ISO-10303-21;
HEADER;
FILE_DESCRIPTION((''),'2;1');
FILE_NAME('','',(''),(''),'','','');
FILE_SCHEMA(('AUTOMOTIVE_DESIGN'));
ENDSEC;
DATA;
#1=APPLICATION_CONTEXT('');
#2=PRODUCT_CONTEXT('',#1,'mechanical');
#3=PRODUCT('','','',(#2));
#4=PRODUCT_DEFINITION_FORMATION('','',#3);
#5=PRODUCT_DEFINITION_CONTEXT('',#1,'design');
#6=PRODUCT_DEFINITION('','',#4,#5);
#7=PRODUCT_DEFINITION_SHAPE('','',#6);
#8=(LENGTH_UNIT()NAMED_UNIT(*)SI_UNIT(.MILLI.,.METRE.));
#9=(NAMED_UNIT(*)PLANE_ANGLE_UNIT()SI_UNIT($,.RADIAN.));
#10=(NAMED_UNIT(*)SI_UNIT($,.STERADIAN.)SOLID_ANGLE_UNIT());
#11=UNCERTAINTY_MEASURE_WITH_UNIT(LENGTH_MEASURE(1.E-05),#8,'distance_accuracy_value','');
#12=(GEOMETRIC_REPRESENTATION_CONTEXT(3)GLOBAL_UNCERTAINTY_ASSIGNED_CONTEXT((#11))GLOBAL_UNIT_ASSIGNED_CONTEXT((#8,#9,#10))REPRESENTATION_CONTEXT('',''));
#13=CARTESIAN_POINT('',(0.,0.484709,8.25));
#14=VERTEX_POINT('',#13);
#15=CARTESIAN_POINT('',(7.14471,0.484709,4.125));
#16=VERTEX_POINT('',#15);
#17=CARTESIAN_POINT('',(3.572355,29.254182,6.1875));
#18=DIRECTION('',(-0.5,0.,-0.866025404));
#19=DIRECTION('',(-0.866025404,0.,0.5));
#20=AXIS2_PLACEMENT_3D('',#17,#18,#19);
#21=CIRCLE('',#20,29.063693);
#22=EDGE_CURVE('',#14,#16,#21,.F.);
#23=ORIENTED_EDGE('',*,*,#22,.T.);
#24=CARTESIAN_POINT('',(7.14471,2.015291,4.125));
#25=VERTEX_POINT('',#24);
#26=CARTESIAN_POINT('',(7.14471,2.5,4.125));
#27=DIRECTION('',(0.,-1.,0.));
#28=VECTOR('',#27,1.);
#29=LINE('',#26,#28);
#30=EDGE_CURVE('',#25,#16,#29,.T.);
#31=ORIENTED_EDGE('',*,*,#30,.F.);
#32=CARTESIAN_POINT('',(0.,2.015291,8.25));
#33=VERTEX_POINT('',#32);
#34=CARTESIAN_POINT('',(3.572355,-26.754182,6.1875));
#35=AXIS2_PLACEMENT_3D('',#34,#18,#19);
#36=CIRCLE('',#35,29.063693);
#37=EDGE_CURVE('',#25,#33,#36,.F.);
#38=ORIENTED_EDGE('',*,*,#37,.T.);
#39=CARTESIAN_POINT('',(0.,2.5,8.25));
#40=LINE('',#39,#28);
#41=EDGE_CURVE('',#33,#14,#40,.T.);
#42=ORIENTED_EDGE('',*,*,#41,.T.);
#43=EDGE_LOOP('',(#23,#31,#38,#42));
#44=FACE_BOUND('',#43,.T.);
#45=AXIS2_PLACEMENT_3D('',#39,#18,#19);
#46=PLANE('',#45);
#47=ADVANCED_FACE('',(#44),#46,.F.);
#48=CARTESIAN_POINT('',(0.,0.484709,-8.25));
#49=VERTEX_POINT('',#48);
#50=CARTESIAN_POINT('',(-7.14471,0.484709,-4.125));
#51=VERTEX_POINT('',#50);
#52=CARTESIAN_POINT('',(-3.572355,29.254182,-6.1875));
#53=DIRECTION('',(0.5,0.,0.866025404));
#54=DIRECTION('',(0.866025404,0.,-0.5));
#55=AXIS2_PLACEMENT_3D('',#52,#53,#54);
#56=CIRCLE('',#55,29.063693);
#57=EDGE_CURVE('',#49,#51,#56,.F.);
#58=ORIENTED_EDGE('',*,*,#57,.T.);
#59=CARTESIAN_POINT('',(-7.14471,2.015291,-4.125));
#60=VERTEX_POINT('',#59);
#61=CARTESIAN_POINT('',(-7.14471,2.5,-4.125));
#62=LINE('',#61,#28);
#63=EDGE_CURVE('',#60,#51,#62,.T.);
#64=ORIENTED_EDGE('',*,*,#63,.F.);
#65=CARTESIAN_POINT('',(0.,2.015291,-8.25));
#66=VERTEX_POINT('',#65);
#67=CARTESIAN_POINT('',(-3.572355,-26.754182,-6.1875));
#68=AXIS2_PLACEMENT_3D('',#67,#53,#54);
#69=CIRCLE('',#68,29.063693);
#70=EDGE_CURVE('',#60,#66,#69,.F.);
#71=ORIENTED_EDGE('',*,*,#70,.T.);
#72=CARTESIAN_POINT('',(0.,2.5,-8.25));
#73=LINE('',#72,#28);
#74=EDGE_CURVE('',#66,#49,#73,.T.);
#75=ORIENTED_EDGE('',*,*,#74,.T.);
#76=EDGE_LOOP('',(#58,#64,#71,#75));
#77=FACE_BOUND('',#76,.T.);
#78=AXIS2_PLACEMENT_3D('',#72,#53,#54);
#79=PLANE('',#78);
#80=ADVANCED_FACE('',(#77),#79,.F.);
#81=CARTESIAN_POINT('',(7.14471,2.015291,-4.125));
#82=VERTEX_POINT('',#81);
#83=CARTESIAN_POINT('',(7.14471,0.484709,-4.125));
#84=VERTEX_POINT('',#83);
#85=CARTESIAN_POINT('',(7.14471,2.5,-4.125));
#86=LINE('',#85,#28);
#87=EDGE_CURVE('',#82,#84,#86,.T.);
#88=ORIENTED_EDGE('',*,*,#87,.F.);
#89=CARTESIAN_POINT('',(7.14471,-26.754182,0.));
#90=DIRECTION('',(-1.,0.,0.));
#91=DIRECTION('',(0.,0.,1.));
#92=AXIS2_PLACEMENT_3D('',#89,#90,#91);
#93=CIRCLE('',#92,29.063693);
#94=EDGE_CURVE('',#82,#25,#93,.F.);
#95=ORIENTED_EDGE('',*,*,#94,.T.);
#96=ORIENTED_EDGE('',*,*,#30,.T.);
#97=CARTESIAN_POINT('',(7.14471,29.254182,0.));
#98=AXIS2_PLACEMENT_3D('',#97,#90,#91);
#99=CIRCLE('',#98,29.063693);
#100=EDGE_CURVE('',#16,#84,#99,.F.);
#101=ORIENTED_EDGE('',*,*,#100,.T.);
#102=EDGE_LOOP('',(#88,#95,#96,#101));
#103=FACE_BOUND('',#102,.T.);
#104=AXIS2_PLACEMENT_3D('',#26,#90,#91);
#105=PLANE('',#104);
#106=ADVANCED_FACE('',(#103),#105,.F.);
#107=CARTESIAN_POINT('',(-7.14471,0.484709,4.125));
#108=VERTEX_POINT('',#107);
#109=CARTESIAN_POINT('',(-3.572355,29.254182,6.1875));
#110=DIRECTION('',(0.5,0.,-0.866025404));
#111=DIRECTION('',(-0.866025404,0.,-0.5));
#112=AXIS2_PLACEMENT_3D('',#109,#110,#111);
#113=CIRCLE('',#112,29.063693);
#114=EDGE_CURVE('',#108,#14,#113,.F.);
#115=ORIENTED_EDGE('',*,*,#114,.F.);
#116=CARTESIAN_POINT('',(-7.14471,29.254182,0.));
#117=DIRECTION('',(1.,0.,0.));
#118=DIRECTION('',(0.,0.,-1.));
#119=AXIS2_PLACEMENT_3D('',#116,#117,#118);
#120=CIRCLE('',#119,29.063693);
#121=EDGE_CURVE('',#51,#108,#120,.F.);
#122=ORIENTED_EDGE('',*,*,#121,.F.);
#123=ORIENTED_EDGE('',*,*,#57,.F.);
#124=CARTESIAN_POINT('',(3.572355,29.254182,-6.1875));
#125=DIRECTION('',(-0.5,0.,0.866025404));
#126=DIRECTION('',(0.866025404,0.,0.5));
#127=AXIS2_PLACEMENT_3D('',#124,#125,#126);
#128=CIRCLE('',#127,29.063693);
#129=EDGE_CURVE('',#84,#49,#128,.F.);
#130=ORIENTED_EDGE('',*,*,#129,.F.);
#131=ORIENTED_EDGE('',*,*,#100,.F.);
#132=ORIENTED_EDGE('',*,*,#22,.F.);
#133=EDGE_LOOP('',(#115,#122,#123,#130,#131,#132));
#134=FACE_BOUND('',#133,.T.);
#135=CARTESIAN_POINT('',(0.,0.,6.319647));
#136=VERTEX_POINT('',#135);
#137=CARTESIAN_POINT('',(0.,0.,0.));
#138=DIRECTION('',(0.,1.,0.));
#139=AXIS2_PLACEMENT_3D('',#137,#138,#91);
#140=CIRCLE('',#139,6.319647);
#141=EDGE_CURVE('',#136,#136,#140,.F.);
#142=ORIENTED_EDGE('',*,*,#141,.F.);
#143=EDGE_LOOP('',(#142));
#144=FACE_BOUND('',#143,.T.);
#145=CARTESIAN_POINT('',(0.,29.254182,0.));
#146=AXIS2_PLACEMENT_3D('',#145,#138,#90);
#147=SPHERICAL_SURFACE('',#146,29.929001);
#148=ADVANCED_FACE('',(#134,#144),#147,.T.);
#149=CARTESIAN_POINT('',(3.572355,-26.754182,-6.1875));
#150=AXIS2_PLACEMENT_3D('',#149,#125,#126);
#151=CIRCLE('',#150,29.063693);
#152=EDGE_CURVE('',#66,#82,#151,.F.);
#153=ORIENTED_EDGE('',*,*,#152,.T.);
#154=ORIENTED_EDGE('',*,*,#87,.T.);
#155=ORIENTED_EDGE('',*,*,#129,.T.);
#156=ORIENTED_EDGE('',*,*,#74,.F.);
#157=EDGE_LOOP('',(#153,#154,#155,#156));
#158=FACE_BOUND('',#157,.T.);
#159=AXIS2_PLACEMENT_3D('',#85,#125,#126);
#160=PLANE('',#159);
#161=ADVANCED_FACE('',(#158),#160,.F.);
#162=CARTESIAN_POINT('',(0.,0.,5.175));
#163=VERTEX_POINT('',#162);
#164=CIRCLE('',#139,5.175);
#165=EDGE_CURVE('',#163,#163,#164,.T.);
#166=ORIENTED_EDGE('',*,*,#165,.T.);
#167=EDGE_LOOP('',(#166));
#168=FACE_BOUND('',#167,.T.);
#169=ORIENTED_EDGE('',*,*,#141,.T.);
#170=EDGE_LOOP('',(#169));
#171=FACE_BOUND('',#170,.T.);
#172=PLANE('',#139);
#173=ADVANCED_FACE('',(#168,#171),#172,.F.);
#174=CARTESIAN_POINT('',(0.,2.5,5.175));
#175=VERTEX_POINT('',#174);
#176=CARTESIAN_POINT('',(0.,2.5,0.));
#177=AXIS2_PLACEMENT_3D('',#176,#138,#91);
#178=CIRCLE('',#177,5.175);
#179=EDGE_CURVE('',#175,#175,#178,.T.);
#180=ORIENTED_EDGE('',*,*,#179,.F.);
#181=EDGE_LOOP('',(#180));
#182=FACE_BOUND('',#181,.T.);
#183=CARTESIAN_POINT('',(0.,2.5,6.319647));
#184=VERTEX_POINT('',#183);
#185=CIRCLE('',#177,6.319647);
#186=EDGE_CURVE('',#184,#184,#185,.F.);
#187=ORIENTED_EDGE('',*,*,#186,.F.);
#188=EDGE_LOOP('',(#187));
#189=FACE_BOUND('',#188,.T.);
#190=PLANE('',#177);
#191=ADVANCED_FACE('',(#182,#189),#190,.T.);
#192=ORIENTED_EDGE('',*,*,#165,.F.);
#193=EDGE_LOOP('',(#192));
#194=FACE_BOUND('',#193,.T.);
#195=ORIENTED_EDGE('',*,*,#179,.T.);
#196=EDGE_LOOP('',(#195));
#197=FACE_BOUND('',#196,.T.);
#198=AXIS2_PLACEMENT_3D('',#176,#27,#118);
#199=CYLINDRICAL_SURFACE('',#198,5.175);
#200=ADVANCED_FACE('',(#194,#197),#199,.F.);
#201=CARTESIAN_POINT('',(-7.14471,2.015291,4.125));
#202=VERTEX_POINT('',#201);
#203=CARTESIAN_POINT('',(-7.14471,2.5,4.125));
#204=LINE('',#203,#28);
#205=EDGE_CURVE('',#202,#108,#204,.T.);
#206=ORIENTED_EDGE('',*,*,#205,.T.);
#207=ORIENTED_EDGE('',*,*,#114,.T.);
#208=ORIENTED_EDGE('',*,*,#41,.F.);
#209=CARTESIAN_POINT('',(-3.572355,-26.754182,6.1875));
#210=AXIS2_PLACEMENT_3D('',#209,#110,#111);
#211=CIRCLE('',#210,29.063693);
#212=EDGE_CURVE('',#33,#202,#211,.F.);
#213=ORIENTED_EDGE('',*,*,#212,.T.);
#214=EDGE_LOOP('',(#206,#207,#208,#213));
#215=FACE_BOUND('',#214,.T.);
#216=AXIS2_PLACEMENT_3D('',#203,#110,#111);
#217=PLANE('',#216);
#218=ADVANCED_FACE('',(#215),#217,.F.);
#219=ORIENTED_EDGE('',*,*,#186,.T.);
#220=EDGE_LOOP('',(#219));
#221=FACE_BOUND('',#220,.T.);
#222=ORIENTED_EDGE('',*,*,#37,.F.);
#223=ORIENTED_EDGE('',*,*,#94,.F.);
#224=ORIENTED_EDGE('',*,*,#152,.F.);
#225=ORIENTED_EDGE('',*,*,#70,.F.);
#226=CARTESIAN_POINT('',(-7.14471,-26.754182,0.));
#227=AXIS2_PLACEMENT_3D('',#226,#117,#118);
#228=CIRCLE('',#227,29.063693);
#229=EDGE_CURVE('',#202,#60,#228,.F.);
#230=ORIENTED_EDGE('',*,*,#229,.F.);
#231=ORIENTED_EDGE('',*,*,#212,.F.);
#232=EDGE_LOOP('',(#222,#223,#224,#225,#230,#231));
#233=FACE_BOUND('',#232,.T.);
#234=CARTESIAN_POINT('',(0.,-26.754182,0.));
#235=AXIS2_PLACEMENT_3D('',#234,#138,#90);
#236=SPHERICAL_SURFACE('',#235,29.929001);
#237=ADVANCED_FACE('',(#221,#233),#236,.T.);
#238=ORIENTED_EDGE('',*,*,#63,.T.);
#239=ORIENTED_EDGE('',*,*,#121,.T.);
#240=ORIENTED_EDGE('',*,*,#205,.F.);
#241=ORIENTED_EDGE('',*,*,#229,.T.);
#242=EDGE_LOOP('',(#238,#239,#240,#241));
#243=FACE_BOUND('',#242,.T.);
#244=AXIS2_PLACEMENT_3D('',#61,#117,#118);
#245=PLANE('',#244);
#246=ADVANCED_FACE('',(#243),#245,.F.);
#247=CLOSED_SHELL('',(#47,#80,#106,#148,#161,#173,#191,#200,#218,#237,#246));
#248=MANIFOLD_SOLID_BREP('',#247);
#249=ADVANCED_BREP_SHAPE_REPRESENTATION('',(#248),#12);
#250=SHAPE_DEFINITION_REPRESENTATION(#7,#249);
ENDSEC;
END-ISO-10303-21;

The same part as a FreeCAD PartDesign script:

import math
import FreeCAD as App
import Part
import Sketcher
Q = App.Units.Quantity


def add_polygon(sketch, points):
    """Adds a closed chain of lines whose ends are joined by coincident constraints."""
    first, n = sketch.GeometryCount, len(points)
    for a, b in zip(points, points[1:] + points[:1]):
        sketch.addGeometry(Part.LineSegment(App.Vector(*a, 0), App.Vector(*b, 0)), False)
    for i in range(n):
        sketch.addConstraint(Sketcher.Constraint("Coincident", first + i, 2, first + (i + 1) % n, 1))

doc = App.newDocument("Part")
body = doc.addObject("PartDesign::Body", "Body")

# Sketch on XZ plane
sketch1 = body.newObject("Sketcher::SketchObject", "Sketch")
sketch1.AttachmentSupport = (doc.getObject("XZ_Plane"), [""])
sketch1.MapMode = "FlatFace"
add_polygon(sketch1, [(0, -8.25), (-7.14471, -4.125), (-7.14471, 4.125), (0, 8.25), (7.14471, 4.125), (7.14471, -4.125)])  # lines 0-5
sketch1.addGeometry(Part.Circle(App.Vector(0, 0, 0), App.Vector(0, 0, 1), 5.175), False)  # 6
sketch1.addConstraint([
    Sketcher.Constraint("Vertical", 1),
    Sketcher.Constraint("Vertical", 4),
    Sketcher.Constraint("Coincident", 6, 3, -1, 1),
    Sketcher.Constraint("Symmetric", 0, 2, 3, 2, -1, 1),
    Sketcher.Constraint("Symmetric", 2, 2, 5, 2, -1, 1),
    Sketcher.Constraint("PointOnObject", 2, 2, -2),
    Sketcher.Constraint("Parallel", 2, 5),
    Sketcher.Constraint("Horizontal", 1, 2, 3, 2),
    Sketcher.Constraint("Diameter", 6, 10.35),
    Sketcher.Constraint("Angle", 0, Q("150 deg")),
    Sketcher.Constraint("DistanceY", 1, 1, 1, 2, 8.25),
    Sketcher.Constraint("Distance", 0, 8.25),
])
pad1 = body.newObject("PartDesign::Pad", "Pad")
pad1.Profile = sketch1
pad1.Length = 2.5
pad1.Reversed = True

# Sketch on XY plane
sketch2 = body.newObject("Sketcher::SketchObject", "Sketch001")
sketch2.AttachmentSupport = (doc.getObject("XY_Plane"), [""])
sketch2.MapMode = "FlatFace"
sketch2.addGeometry([
    Part.LineSegment(App.Vector(0, 3.174819, 0), App.Vector(0, 16.076903, 0)),  # 0
    Part.ArcOfCircle(Part.Circle(App.Vector(0, 0.785355, 0), App.Vector(0, 0, 1), 15.291548), math.radians(90), math.radians(270)),  # 1
    Part.LineSegment(App.Vector(0, -14.506193, 0), App.Vector(0, -0.674819, 0)),  # 2
    Part.ArcOfCircle(Part.Circle(App.Vector(0, 29.254182, 0), App.Vector(0, 0, 1), 29.929001), math.radians(-110.660555), math.radians(-90)),  # 3
    Part.ArcOfCircle(Part.Circle(App.Vector(0, -26.754182, 0), App.Vector(0, 0, 1), 29.929001), math.radians(90), math.radians(110.660555)),  # 4
], False)
sketch2.addConstraint([
    Sketcher.Constraint("Coincident", 0, 2, 1, 1),
    Sketcher.Constraint("Coincident", 1, 2, 2, 1),
    Sketcher.Constraint("Coincident", 2, 2, 3, 2),
    Sketcher.Constraint("Coincident", 3, 1, 4, 2),
    Sketcher.Constraint("Coincident", 4, 1, 0, 1),
    Sketcher.Constraint("Vertical", 0),
    Sketcher.Constraint("Vertical", 2),
    Sketcher.Constraint("Equal", 3, 4),
    Sketcher.Constraint("PointOnObject", 1, 3, -2),
    Sketcher.Constraint("PointOnObject", 3, 3, -2),
    Sketcher.Constraint("PointOnObject", 4, 3, -2),
    Sketcher.Constraint("PointOnObject", 0, 2, -2),
    Sketcher.Constraint("PointOnObject", 1, 2, -2),
    Sketcher.Constraint("Radius", 3, 29.929001),
    Sketcher.Constraint("DistanceY", -1, 1, 3, 1, 1.25),
    Sketcher.Constraint("Radius", 1, 15.291548),
    Sketcher.Constraint("DistanceY", 0, 1, 0, 2, 12.902084),
    Sketcher.Constraint("DistanceY", 2, 1, 2, 2, 13.831374),
])
groove = body.newObject("PartDesign::Groove", "Groove")
groove.Profile = sketch2
groove.ReferenceAxis = (sketch2, ["V_Axis"])
groove.Angle = 360

doc.recompute()
